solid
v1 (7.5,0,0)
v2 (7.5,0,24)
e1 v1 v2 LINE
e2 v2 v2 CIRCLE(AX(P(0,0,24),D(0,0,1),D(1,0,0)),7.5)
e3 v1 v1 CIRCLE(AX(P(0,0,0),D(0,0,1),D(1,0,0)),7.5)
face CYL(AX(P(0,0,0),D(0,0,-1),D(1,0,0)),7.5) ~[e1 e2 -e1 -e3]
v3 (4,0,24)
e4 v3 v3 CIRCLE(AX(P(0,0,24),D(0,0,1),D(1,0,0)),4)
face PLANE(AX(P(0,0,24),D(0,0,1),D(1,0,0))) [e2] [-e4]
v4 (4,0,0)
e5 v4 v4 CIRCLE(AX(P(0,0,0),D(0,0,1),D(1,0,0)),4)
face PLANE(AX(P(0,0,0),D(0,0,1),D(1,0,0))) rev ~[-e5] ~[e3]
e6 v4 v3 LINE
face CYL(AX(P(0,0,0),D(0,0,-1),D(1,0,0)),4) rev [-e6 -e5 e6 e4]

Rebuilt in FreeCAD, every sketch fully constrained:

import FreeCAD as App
import Part
import Sketcher
from FreeCAD import Vector
Q = App.Units.Quantity

doc = App.newDocument("Part")
body = doc.addObject("PartDesign::Body", "Body")

sketch1 = doc.addObject("Sketcher::SketchObject", "Sketch")
body.addObject(sketch1)
sketch1.AttachmentSupport = (doc.XY_Plane, [""])
sketch1.MapMode = "FlatFace"
sketch1.addGeometry([
    Part.Circle(Vector(0, 0, 0), Vector(0, 0, 1), 7.5),
    Part.Circle(Vector(0, 0, 0), Vector(0, 0, 1), 4),
], False)
sketch1.addConstraint([
    Sketcher.Constraint("Coincident", 0, 3, -1, 1),
    Sketcher.Constraint("Coincident", 1, 3, -1, 1),
    Sketcher.Constraint("Diameter", 0, Q("15 mm")),
    Sketcher.Constraint("Diameter", 1, Q("8 mm")),
])
pad1 = doc.addObject("PartDesign::Pad", "Pad")
body.addObject(pad1)
pad1.Profile = sketch1
pad1.Length = 24

doc.recompute()
